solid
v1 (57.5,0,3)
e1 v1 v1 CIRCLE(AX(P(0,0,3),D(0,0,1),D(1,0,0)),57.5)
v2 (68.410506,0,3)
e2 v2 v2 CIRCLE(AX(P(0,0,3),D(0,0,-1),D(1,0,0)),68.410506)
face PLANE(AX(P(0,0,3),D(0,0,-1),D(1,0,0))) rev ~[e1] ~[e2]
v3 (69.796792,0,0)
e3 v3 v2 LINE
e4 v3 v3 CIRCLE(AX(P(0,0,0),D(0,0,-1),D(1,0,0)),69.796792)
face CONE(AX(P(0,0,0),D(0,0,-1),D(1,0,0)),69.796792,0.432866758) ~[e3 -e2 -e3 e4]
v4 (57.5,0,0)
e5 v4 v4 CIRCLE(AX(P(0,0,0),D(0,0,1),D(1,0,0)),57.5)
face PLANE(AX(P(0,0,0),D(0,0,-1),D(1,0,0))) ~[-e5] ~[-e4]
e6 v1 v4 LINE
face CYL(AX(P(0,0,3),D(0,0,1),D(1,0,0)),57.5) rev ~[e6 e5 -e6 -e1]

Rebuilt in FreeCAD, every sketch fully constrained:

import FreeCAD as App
import Part
import Sketcher

V = App.Vector
Q = App.Units.Quantity

doc = App.newDocument("Part")
params = doc.addObject("Spreadsheet::Sheet", "Params")
for row, (alias, value) in enumerate([
    ("sketch1_height", "3 mm"),
    ("revolution_angle", "360 deg"),
    ("sketch2_diameter", "115 mm"),
    ("pocket1_length", "3 mm"),
], start=1):
    params.set(f"A{row}", alias)
    params.set(f"B{row}", "=" + value)
    params.setAlias(f"B{row}", alias)

body = doc.addObject("PartDesign::Body", "Body")

sketch1 = body.newObject("Sketcher::SketchObject", "Sketch")
sketch1.AttachmentSupport = (doc.getObject("XZ_Plane"), [""])
sketch1.MapMode = "FlatFace"
sketch1.addGeometry([
    Part.LineSegment(V(69.8, 0, 0), V(68.4, 3, 0)),
    Part.LineSegment(V(68.4, 3, 0), V(0, 3, 0)),
    Part.LineSegment(V(0, 3, 0), V(0, 0, 0)),
    Part.LineSegment(V(0, 0, 0), V(69.8, 0, 0)),
], False)
sketch1.addConstraint([
    Sketcher.Constraint("Coincident", 0, 2, 1, 1),
    Sketcher.Constraint("Coincident", 1, 2, 2, 1),
    Sketcher.Constraint("Coincident", 2, 2, 3, 1),
    Sketcher.Constraint("Coincident", 3, 2, 0, 1),
    Sketcher.Constraint("Horizontal", 1),
    Sketcher.Constraint("Vertical", 2),
    Sketcher.Constraint("Horizontal", 3),
    Sketcher.Constraint("Coincident", 2, 2, -1, 1),
    Sketcher.Constraint("DistanceY", 2, 2, 2, 1, Q("3 mm")),
    Sketcher.Constraint("DistanceX", 3, 1, 3, 2, Q("69.796792 mm")),
    Sketcher.Constraint("DistanceX", 1, 2, 1, 1, Q("68.410506 mm")),
])
sketch1.setExpression("Constraints[8]", "Params.sketch1_height")
revolution = body.newObject("PartDesign::Revolution", "Revolution")
revolution.Profile = sketch1
revolution.ReferenceAxis = (sketch1, ["V_Axis"])
revolution.setExpression("Angle", "Params.revolution_angle")

sketch2 = body.newObject("Sketcher::SketchObject", "Sketch001")
sketch2.AttachmentSupport = (doc.getObject("XY_Plane"), [""])
sketch2.MapMode = "FlatFace"
sketch2.AttachmentOffset = App.Placement(V(0, 0, 3), App.Rotation())
sketch2.addGeometry(Part.Circle(V(0, 0, 0), V(0, 0, 1), 58), False)
sketch2.addConstraint([
    Sketcher.Constraint("Coincident", 0, 3, -1, 1),
    Sketcher.Constraint("Diameter", 0, Q("115 mm")),
])
sketch2.setExpression("Constraints[1]", "Params.sketch2_diameter")
pocket1 = body.newObject("PartDesign::Pocket", "Pocket")
pocket1.Profile = sketch2
pocket1.setExpression("Length", "Params.pocket1_length")

doc.recompute()
